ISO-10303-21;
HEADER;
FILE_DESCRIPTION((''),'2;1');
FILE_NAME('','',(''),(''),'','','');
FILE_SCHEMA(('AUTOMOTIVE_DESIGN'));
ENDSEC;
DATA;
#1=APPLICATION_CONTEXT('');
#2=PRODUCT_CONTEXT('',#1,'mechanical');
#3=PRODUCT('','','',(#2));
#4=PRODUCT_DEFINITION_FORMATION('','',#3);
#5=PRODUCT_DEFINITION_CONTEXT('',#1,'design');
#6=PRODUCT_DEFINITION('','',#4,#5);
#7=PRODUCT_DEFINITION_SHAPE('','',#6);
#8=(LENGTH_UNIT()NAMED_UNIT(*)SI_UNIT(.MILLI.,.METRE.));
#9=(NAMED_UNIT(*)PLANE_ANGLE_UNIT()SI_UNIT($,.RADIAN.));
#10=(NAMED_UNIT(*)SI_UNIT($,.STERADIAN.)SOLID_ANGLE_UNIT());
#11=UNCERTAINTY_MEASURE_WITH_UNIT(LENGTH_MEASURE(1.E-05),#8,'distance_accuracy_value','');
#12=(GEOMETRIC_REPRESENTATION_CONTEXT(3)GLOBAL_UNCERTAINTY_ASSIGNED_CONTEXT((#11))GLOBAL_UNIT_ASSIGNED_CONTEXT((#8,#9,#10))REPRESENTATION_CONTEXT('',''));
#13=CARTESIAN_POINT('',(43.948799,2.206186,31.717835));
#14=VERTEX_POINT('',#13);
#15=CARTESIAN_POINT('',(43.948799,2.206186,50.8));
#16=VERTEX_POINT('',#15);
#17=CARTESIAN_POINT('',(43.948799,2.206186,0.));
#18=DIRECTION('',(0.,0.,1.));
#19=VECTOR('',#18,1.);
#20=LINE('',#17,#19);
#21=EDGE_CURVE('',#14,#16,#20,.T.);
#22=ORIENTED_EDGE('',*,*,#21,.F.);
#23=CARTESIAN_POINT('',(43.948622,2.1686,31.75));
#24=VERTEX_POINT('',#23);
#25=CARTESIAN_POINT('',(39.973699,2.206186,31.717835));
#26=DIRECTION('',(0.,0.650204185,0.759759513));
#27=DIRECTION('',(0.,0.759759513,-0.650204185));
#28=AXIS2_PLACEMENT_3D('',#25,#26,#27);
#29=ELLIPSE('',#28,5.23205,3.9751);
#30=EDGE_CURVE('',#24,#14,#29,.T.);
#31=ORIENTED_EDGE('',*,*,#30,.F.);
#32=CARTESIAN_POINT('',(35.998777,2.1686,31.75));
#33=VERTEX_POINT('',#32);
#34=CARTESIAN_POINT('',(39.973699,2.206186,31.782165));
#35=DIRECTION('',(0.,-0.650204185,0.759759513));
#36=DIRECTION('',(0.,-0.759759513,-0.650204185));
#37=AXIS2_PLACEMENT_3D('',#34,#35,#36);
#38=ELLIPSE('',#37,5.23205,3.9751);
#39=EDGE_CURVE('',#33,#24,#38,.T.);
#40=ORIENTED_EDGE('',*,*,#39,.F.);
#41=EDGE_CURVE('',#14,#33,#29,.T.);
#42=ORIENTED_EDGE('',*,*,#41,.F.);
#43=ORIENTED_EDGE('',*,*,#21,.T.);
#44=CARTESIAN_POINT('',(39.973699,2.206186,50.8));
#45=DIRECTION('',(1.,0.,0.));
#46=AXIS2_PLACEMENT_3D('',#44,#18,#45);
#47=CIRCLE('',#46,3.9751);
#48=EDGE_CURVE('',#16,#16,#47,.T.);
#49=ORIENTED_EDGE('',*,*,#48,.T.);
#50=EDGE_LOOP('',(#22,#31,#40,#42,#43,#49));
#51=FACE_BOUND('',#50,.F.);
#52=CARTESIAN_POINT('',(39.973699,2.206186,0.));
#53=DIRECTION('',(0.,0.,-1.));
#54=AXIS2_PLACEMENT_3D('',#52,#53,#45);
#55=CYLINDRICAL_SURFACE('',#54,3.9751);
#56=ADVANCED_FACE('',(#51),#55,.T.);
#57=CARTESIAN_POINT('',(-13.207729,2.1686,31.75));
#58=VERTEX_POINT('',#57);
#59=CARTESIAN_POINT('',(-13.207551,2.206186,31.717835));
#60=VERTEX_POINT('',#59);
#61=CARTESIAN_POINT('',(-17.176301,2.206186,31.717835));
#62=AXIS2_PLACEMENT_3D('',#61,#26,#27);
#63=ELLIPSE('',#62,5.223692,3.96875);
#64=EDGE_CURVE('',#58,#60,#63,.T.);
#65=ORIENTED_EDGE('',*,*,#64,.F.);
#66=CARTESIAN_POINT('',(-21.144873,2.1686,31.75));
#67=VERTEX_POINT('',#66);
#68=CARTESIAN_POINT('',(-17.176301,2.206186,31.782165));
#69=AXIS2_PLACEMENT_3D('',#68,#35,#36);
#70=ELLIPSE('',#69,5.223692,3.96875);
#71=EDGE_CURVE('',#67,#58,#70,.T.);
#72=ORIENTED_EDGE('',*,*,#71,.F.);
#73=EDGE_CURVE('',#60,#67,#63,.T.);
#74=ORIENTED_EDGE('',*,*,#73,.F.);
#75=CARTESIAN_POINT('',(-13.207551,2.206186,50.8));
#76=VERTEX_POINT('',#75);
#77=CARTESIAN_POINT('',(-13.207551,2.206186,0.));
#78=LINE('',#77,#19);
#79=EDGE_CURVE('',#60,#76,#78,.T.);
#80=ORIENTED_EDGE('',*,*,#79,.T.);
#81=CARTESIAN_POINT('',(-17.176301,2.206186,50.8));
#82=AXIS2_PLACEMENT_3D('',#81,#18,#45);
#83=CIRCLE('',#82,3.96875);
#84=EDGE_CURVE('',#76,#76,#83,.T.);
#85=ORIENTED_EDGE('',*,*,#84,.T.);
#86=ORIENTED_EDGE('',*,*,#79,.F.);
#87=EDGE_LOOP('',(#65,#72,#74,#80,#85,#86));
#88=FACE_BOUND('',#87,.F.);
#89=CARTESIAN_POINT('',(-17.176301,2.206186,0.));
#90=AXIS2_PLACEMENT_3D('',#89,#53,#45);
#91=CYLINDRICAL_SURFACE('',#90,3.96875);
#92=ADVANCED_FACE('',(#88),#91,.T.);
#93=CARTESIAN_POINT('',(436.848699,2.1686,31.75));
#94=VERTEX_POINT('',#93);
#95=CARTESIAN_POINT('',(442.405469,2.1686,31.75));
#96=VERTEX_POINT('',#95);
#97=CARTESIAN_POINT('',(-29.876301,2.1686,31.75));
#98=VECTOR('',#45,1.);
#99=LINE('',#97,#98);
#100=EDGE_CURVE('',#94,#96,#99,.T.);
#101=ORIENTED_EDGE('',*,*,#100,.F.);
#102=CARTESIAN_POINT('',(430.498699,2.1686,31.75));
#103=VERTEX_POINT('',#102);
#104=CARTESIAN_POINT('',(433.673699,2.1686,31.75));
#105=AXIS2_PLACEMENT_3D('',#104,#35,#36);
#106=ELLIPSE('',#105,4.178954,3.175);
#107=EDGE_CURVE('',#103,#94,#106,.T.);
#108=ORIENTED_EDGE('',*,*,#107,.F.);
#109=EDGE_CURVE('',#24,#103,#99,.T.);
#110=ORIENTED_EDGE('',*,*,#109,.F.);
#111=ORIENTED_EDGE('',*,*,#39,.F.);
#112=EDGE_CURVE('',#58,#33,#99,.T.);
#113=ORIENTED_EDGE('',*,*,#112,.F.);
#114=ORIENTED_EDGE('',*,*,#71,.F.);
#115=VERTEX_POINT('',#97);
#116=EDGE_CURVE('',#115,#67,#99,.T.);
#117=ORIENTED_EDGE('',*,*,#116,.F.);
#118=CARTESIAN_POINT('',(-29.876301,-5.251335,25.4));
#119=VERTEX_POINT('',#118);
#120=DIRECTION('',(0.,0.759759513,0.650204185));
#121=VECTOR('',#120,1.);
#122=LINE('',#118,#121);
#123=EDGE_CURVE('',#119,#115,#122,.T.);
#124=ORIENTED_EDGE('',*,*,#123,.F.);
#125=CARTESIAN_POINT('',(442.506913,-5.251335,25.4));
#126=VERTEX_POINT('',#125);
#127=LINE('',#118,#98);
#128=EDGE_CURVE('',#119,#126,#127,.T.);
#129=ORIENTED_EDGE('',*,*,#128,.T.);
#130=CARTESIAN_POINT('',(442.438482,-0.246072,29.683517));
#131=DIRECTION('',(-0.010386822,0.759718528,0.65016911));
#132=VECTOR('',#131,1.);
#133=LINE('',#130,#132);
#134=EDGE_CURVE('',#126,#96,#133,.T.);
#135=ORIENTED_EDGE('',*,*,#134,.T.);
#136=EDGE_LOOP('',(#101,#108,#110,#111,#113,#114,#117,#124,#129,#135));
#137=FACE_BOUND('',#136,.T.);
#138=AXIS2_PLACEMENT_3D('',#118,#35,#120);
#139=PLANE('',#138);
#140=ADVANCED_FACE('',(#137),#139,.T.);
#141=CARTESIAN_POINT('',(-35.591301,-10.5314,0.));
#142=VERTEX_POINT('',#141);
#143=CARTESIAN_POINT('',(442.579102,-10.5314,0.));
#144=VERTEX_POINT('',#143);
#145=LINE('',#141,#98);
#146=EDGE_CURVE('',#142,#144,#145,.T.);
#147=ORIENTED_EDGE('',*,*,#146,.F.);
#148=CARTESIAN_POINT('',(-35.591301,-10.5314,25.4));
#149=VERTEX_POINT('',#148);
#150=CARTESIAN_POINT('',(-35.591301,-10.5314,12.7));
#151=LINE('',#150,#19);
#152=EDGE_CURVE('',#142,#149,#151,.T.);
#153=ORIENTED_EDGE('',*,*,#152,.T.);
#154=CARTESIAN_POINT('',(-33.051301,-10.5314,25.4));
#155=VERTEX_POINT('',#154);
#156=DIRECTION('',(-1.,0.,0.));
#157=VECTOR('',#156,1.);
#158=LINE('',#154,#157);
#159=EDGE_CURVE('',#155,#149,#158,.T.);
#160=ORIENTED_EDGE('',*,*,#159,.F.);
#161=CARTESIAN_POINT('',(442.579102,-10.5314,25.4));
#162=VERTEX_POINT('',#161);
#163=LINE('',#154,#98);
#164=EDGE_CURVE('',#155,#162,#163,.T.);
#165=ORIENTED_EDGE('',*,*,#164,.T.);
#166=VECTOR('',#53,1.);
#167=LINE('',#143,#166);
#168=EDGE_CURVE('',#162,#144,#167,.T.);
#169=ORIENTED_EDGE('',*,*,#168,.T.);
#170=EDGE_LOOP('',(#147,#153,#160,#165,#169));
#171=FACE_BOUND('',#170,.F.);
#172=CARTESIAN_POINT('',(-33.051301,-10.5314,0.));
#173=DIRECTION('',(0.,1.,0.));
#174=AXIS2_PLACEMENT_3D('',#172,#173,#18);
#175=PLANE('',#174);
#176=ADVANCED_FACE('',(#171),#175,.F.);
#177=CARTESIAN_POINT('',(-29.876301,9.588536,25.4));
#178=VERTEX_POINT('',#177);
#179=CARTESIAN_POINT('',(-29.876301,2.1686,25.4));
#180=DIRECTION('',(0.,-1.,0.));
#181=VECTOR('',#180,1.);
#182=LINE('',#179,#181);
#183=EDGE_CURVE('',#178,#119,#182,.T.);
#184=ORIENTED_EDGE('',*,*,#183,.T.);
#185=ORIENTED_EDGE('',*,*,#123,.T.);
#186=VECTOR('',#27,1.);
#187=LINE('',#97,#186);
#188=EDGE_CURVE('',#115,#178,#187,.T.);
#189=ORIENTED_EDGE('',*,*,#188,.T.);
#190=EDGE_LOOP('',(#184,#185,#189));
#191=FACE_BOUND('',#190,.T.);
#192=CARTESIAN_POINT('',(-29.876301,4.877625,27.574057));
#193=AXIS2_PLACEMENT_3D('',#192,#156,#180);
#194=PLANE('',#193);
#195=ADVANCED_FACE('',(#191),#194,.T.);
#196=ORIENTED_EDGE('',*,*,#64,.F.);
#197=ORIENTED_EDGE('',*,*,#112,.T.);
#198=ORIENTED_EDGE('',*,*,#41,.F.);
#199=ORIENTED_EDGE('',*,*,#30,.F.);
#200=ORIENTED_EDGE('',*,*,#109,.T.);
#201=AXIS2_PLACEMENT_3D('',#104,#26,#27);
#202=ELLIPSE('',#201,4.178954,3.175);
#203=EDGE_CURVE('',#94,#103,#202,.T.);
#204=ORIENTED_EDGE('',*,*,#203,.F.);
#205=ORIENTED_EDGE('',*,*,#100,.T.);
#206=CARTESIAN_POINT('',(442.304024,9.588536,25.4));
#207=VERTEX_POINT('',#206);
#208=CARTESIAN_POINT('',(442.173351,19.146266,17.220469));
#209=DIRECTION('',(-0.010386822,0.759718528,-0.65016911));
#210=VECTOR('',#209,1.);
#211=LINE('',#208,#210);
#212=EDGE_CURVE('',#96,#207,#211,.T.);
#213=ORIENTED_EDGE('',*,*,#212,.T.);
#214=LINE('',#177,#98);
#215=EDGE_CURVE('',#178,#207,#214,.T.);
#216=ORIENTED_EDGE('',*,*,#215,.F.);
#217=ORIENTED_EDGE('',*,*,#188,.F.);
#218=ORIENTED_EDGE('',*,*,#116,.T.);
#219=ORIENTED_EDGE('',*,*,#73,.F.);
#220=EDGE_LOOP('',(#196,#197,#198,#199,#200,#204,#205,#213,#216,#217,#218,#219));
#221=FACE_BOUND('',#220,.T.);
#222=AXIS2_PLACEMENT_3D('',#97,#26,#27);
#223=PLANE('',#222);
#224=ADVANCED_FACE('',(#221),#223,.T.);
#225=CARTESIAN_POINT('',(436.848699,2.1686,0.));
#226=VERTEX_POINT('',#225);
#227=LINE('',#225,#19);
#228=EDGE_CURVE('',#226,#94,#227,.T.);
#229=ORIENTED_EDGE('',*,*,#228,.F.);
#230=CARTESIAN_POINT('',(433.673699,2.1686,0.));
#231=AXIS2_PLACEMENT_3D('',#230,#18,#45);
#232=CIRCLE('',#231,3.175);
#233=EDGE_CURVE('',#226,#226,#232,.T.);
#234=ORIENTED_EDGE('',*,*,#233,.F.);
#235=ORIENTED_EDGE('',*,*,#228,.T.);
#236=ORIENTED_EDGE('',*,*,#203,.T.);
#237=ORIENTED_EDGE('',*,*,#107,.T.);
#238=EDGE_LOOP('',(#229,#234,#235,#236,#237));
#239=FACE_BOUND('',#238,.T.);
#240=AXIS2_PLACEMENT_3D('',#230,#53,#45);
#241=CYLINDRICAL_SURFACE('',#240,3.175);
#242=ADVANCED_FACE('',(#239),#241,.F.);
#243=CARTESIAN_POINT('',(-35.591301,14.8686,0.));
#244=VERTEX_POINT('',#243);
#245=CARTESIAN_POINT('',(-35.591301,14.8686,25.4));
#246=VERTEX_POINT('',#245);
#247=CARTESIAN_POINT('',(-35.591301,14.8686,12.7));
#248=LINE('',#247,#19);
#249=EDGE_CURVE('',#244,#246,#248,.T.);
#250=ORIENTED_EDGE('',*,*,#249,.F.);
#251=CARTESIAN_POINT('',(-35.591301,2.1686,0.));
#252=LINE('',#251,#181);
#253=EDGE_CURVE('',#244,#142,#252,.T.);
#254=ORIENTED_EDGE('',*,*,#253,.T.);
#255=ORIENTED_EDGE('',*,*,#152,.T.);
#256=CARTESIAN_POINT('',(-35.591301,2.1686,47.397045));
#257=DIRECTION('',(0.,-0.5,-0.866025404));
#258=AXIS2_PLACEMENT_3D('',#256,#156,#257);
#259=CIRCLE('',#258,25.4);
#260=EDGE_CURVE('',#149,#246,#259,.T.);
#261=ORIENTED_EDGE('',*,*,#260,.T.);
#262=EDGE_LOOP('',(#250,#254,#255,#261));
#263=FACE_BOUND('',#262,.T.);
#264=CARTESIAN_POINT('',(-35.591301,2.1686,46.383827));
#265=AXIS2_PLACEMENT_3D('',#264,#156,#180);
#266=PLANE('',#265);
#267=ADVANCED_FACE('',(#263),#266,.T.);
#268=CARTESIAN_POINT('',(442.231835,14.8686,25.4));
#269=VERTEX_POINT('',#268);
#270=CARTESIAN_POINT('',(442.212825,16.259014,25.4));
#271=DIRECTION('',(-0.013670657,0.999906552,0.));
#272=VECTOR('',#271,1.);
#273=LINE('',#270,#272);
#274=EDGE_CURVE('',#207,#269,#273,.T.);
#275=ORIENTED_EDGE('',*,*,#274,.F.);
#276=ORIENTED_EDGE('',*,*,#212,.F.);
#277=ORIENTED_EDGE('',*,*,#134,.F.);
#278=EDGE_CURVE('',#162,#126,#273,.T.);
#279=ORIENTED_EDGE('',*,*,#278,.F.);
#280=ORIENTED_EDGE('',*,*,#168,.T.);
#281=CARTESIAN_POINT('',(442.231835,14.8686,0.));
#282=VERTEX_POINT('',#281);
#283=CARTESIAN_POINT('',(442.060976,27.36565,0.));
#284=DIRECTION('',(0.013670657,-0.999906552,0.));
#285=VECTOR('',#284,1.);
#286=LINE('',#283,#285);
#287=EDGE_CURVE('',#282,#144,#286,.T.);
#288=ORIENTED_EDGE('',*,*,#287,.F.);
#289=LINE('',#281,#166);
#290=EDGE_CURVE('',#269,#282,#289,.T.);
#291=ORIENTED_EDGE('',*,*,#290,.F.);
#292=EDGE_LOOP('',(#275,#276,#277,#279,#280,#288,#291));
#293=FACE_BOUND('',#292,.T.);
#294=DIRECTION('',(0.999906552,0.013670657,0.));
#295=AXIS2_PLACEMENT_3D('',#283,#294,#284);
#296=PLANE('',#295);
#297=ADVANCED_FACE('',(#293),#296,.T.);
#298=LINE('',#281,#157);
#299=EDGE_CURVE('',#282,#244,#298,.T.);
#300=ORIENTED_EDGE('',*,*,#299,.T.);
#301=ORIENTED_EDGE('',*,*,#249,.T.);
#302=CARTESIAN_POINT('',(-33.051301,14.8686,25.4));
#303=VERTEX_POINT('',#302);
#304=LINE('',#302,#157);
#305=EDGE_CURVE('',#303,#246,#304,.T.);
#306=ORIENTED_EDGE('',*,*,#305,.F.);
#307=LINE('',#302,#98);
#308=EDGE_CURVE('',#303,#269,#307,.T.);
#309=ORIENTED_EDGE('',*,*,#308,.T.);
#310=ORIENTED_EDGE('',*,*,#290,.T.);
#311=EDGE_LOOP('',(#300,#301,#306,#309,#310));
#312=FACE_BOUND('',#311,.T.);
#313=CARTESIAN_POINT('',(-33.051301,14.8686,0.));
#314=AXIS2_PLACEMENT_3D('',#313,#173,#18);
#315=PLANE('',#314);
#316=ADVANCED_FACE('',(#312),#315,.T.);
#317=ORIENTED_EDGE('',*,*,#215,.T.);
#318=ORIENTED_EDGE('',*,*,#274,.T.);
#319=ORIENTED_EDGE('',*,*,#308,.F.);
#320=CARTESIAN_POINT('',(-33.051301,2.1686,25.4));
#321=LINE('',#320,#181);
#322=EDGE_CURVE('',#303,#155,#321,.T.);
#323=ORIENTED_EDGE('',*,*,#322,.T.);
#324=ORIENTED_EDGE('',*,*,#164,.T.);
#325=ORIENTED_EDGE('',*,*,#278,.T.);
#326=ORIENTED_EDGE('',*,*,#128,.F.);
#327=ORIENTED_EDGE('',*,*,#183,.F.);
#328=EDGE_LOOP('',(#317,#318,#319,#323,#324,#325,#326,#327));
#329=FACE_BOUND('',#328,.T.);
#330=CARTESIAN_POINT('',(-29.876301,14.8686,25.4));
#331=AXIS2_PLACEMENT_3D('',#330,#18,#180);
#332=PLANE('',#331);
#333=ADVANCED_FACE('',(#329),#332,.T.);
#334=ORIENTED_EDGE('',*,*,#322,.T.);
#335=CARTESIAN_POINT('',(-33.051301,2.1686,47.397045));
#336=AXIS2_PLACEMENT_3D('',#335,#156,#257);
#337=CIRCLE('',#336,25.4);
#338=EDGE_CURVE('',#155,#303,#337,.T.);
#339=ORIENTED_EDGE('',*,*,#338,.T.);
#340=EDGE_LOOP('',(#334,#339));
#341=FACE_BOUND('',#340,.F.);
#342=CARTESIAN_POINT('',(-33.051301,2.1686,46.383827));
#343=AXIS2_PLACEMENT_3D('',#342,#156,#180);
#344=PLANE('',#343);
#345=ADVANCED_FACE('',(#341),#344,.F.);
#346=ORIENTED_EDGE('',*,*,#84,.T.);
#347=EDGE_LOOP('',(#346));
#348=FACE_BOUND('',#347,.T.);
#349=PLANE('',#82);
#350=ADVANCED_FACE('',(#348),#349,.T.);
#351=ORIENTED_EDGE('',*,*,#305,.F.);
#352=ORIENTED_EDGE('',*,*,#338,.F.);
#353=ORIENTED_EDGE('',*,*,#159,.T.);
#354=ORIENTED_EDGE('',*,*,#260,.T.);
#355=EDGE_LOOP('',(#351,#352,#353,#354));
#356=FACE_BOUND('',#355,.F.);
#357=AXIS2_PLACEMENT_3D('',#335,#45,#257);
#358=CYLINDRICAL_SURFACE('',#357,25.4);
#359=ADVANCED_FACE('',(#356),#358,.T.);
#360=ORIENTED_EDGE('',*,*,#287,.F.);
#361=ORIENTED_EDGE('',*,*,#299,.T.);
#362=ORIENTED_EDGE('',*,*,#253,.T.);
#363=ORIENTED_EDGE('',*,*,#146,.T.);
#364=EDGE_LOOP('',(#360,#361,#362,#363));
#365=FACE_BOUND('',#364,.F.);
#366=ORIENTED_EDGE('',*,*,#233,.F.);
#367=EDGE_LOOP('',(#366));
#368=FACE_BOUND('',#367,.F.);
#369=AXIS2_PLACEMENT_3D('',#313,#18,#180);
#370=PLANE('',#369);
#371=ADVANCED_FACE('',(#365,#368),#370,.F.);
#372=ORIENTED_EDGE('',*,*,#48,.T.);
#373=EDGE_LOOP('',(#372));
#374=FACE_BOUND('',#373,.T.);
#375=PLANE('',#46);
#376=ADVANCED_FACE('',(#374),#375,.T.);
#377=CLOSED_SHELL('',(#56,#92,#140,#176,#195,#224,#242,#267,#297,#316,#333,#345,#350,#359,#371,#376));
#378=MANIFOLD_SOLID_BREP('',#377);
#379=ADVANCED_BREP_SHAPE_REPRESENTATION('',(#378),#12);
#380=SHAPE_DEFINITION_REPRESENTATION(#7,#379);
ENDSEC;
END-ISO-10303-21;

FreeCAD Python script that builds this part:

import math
import FreeCAD as App
import Part
import Sketcher
Q = App.Units.Quantity


def add_polygon(sketch, points):
    """Adds a closed chain of lines whose ends are joined by coincident constraints."""
    first, n = sketch.GeometryCount, len(points)
    for a, b in zip(points, points[1:] + points[:1]):
        sketch.addGeometry(Part.LineSegment(App.Vector(*a, 0), App.Vector(*b, 0)), False)
    for i in range(n):
        sketch.addConstraint(Sketcher.Constraint("Coincident", first + i, 2, first + (i + 1) % n, 1))

doc = App.newDocument("Part")
body = doc.addObject("PartDesign::Body", "Body")

# Sketch on XY plane
sketch1 = body.newObject("Sketcher::SketchObject", "Sketch")
sketch1.AttachmentSupport = (doc.getObject("XY_Plane"), [""])
sketch1.MapMode = "FlatFace"
add_polygon(sketch1, [(-30, 15), (-30, -11), (478, -11), (478, 15)])  # lines 0-3
sketch1.addConstraint([
    Sketcher.Constraint("Vertical", 0),
    Sketcher.Constraint("Horizontal", 1),
    Sketcher.Constraint("Vertical", 2),
    Sketcher.Constraint("Horizontal", 3),
    Sketcher.Constraint("DistanceX", 1, 1, 1, 2, Q("20 in")),
    Sketcher.Constraint("DistanceY", 0, 2, 0, 1, Q("1 in")),
    Sketcher.Constraint("DistanceX", 0, 2, -1, 1, Q("29.876301 mm")),
    Sketcher.Constraint("DistanceY", 0, 2, -1, 1, Q("10.5314 mm")),
])
pad1 = body.newObject("PartDesign::Pad", "Pad")
pad1.Profile = sketch1
pad1.Length = Q("1 in")

# Sketch on YZ plane
sketch2 = body.newObject("Sketcher::SketchObject", "Sketch001")
sketch2.AttachmentSupport = (doc.getObject("YZ_Plane"), [""])
sketch2.MapMode = "FlatFace"
sketch2.AttachmentOffset = App.Placement(App.Vector(0, 0, -29.876301), App.Rotation())
add_polygon(sketch2, [(2, 32), (10, 25), (-5, 25)])  # lines 0-2
sketch2.addConstraint([
    Sketcher.Constraint("Horizontal", 1),
    Sketcher.Constraint("Equal", 0, 2),
    Sketcher.Constraint("DistanceY", -1, 1, 0, 2, Q("1 in")),
    Sketcher.Constraint("DistanceY", -1, 1, 2, 2, Q("1.25 in")),
    Sketcher.Constraint("DistanceX", 1, 2, 1, 1, Q("14.83987 mm")),
    Sketcher.Constraint("DistanceX", -1, 1, 2, 2, Q("2.1686 mm")),
])
pad2 = body.newObject("PartDesign::Pad", "Pad001")
pad2.Profile = sketch2
pad2.Length = 508.001

# Sketch on XY plane
sketch3 = body.newObject("Sketcher::SketchObject", "Sketch002")
sketch3.AttachmentSupport = (doc.getObject("XY_Plane"), [""])
sketch3.MapMode = "FlatFace"
sketch3.addGeometry([
    Part.Circle(App.Vector(-17.2, 2.2, 0), App.Vector(0, 0, 1), 4),
    Part.Circle(App.Vector(40, 2.2, 0), App.Vector(0, 0, 1), 4),
], False)
sketch3.addConstraint([
    Sketcher.Constraint("Horizontal", 0, 3, 1, 3),
    Sketcher.Constraint("Diameter", 0, Q("0.3125 in")),
    Sketcher.Constraint("Diameter", 1, Q("0.313 in")),
    Sketcher.Constraint("DistanceX", 0, 3, 1, 3, Q("2.25 in")),
    Sketcher.Constraint("DistanceX", 0, 3, -1, 1, Q("17.176301 mm")),
    Sketcher.Constraint("DistanceY", -1, 1, 0, 3, Q("2.206186 mm")),
])
pad3 = body.newObject("PartDesign::Pad", "Pad002")
pad3.Profile = sketch3
pad3.Length = Q("2 in")

# Sketch on XY plane
sketch4 = body.newObject("Sketcher::SketchObject", "Sketch003")
sketch4.AttachmentSupport = (doc.getObject("XY_Plane"), [""])
sketch4.MapMode = "FlatFace"
sketch4.addGeometry(Part.Circle(App.Vector(433.7, 2.2, 0), App.Vector(0, 0, 1), 3.2), False)
sketch4.addConstraint([
    Sketcher.Constraint("Diameter", 0, Q("0.25 in")),
    Sketcher.Constraint("DistanceX", -1, 1, 0, 3, Q("433.673699 mm")),
    Sketcher.Constraint("DistanceY", -1, 1, 0, 3, Q("2.1686 mm")),
])
pocket1 = body.newObject("PartDesign::Pocket", "Pocket")
pocket1.Profile = sketch4
pocket1.Type = "ThroughAll"
pocket1.Midplane = True
body2 = doc.addObject("PartDesign::Body", "Body001")

# Sketch on XY plane
sketch5 = body2.newObject("Sketcher::SketchObject", "Sketch004")
sketch5.AttachmentSupport = (doc.getObject("XY_Plane001"), [""])
sketch5.MapMode = "FlatFace"
add_polygon(sketch5, [(488, 27), (442, 27), (443, -23), (488, -23)])  # lines 0-3
sketch5.addConstraint([
    Sketcher.Constraint("Horizontal", 0),
    Sketcher.Constraint("Vertical", 3),
    Sketcher.Constraint("Perpendicular", 1, 2),
    Sketcher.Constraint("Distance", 1, Q("2 in")),
    Sketcher.Constraint("DistanceX", 0, 2, 0, 1, Q("45.463071 mm")),
    Sketcher.Constraint("DistanceY", 3, 1, 3, 2, Q("50.183179 mm")),
    Sketcher.Constraint("DistanceY", -1, 1, 0, 2, Q("27.36565 mm")),
    Sketcher.Constraint("DistanceX", -1, 1, 0, 2, Q("442.060976 mm")),
])
pad4 = body2.newObject("PartDesign::Pad", "Pad003")
pad4.Profile = sketch5
pad4.Length = Q("1 in")
body3 = doc.addObject("PartDesign::Body", "Body002")

# Sketch on XY plane
sketch6 = body3.newObject("Sketcher::SketchObject", "Sketch005")
sketch6.AttachmentSupport = (doc.getObject("XY_Plane002"), [""])
sketch6.MapMode = "FlatFace"
add_polygon(sketch6, [(488, 27), (442, 27), (443, -23), (488, -23)])  # lines 0-3
sketch6.addConstraint([
    Sketcher.Constraint("Horizontal", 0),
    Sketcher.Constraint("Vertical", 3),
    Sketcher.Constraint("Perpendicular", 1, 2),
    Sketcher.Constraint("Distance", 1, Q("2 in")),
    Sketcher.Constraint("DistanceX", 0, 2, 0, 1, Q("45.463071 mm")),
    Sketcher.Constraint("DistanceY", 3, 1, 3, 2, Q("50.183179 mm")),
    Sketcher.Constraint("DistanceY", -1, 1, 0, 2, Q("27.36565 mm")),
    Sketcher.Constraint("DistanceX", -1, 1, 0, 2, Q("442.060976 mm")),
])
pad5 = body3.newObject("PartDesign::Pad", "Pad004")
pad5.Profile = sketch6
pad5.Length = Q("5.85 in")
doc.recompute()

body4 = doc.addObject("PartDesign::Body", "Body003")
body4.BaseFeature = body3
boolean = body.newObject("PartDesign::Boolean", "Boolean")
boolean.Type = "Cut"
boolean.addObjects([body4])
doc.recompute()

# Sketch on YZ plane
sketch7 = body.newObject("Sketcher::SketchObject", "Sketch006")
sketch7.AttachmentSupport = (doc.getObject("YZ_Plane"), [""])
sketch7.MapMode = "FlatFace"
sketch7.AttachmentOffset = App.Placement(App.Vector(0, 0, -29.876301), App.Rotation())
add_polygon(sketch7, [(15, 25), (15, 0), (-11, 0), (-11, 25)])  # lines 0-3
sketch7.addConstraint([
    Sketcher.Constraint("Vertical", 0),
    Sketcher.Constraint("Horizontal", 1),
    Sketcher.Constraint("Vertical", 2),
    Sketcher.Constraint("Horizontal", 3),
    Sketcher.Constraint("PointOnObject", 0, 2, -1),
    Sketcher.Constraint("Equal", 3, 0),
    Sketcher.Constraint("DistanceX", 1, 2, 1, 1, Q("1 in")),
    Sketcher.Constraint("DistanceX", -1, 1, 0, 2, Q("14.8686 mm")),
])
pad6 = body.newObject("PartDesign::Pad", "Pad005")
pad6.Profile = sketch7
pad6.Length = Q("0.125 in")
pad6.Reversed = True

# Sketch on YZ plane
sketch8 = body.newObject("Sketcher::SketchObject", "Sketch007")
sketch8.AttachmentSupport = (doc.getObject("YZ_Plane"), [""])
sketch8.MapMode = "FlatFace"
sketch8.AttachmentOffset = App.Placement(App.Vector(0, 0, -33.051301), App.Rotation())
sketch8.addGeometry([
    Part.ArcOfCircle(Part.Circle(App.Vector(2, 47, 0), App.Vector(0, 0, 1), 25), math.radians(-60), math.radians(240)),
    Part.LineSegment(App.Vector(15, 25, 0), App.Vector(15, 0, 0)),
    Part.LineSegment(App.Vector(15, 0, 0), App.Vector(-11, 0, 0)),
    Part.LineSegment(App.Vector(-11, 0, 0), App.Vector(-11, 25, 0)),
], False)
sketch8.addConstraint([
    Sketcher.Constraint("Coincident", 0, 1, 1, 1),
    Sketcher.Constraint("Coincident", 1, 2, 2, 1),
    Sketcher.Constraint("Coincident", 2, 2, 3, 1),
    Sketcher.Constraint("Coincident", 3, 2, 0, 2),
    Sketcher.Constraint("Vertical", 1),
    Sketcher.Constraint("Horizontal", 2),
    Sketcher.Constraint("Vertical", 3),
    Sketcher.Constraint("PointOnObject", 1, 2, -1),
    Sketcher.Constraint("Horizontal", 0, 1, 3, 2),
    Sketcher.Constraint("Equal", 2, 1),
    Sketcher.Constraint("Radius", 0, Q("1 in")),
    Sketcher.Constraint("DistanceX", 2, 2, 2, 1, Q("1 in")),
    Sketcher.Constraint("DistanceX", -1, 1, 0, 3, Q("2.1686 mm")),
])
pad7 = body.newObject("PartDesign::Pad", "Pad006")
pad7.Profile = sketch8
pad7.Length = Q("0.1 in")
pad7.Reversed = True
doc.recompute()

boolean2 = body2.newObject("PartDesign::Boolean", "Boolean001")
boolean2.Type = "Cut"
boolean2.addObjects([body3])

doc.recompute()
